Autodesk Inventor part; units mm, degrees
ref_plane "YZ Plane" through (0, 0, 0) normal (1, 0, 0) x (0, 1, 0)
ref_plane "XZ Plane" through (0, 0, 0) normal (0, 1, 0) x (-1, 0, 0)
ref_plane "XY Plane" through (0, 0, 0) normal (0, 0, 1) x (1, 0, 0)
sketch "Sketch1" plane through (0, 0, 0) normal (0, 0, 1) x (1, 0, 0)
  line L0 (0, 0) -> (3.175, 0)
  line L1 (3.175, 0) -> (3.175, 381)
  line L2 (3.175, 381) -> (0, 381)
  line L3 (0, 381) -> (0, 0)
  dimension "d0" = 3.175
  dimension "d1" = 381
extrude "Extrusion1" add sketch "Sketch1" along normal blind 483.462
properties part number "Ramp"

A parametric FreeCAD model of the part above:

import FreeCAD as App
import Part
import Sketcher
Q = App.Units.Quantity


def add_polygon(sketch, points):
    """Adds a closed chain of lines whose ends are joined by coincident constraints."""
    first, n = sketch.GeometryCount, len(points)
    for a, b in zip(points, points[1:] + points[:1]):
        sketch.addGeometry(Part.LineSegment(App.Vector(*a, 0), App.Vector(*b, 0)), False)
    for i in range(n):
        sketch.addConstraint(Sketcher.Constraint("Coincident", first + i, 2, first + (i + 1) % n, 1))

doc = App.newDocument("Part")
body = doc.addObject("PartDesign::Body", "Body")

# Sketch on XY plane
sketch1 = doc.addObject("Sketcher::SketchObject", "Sketch")
body.addObject(sketch1)
sketch1.AttachmentSupport = (doc.XY_Plane, [""])
sketch1.MapMode = "FlatFace"
add_polygon(sketch1, [(0, 381), (0, 0), (3.2, 0), (3.2, 381)])  # lines 0-3
sketch1.addConstraint([
    Sketcher.Constraint("Vertical", 0),
    Sketcher.Constraint("Horizontal", 1),
    Sketcher.Constraint("Vertical", 2),
    Sketcher.Constraint("Horizontal", 3),
    Sketcher.Constraint("Coincident", 0, 2, -1, 1),
    Sketcher.Constraint("DistanceY", 0, 2, 0, 1, Q("15 in")),
    Sketcher.Constraint("DistanceX", 1, 1, 1, 2, Q("0.125 in")),
])
pad1 = doc.addObject("PartDesign::Pad", "Pad")
body.addObject(pad1)
pad1.Profile = sketch1
pad1.Length = 483.462

doc.recompute()
